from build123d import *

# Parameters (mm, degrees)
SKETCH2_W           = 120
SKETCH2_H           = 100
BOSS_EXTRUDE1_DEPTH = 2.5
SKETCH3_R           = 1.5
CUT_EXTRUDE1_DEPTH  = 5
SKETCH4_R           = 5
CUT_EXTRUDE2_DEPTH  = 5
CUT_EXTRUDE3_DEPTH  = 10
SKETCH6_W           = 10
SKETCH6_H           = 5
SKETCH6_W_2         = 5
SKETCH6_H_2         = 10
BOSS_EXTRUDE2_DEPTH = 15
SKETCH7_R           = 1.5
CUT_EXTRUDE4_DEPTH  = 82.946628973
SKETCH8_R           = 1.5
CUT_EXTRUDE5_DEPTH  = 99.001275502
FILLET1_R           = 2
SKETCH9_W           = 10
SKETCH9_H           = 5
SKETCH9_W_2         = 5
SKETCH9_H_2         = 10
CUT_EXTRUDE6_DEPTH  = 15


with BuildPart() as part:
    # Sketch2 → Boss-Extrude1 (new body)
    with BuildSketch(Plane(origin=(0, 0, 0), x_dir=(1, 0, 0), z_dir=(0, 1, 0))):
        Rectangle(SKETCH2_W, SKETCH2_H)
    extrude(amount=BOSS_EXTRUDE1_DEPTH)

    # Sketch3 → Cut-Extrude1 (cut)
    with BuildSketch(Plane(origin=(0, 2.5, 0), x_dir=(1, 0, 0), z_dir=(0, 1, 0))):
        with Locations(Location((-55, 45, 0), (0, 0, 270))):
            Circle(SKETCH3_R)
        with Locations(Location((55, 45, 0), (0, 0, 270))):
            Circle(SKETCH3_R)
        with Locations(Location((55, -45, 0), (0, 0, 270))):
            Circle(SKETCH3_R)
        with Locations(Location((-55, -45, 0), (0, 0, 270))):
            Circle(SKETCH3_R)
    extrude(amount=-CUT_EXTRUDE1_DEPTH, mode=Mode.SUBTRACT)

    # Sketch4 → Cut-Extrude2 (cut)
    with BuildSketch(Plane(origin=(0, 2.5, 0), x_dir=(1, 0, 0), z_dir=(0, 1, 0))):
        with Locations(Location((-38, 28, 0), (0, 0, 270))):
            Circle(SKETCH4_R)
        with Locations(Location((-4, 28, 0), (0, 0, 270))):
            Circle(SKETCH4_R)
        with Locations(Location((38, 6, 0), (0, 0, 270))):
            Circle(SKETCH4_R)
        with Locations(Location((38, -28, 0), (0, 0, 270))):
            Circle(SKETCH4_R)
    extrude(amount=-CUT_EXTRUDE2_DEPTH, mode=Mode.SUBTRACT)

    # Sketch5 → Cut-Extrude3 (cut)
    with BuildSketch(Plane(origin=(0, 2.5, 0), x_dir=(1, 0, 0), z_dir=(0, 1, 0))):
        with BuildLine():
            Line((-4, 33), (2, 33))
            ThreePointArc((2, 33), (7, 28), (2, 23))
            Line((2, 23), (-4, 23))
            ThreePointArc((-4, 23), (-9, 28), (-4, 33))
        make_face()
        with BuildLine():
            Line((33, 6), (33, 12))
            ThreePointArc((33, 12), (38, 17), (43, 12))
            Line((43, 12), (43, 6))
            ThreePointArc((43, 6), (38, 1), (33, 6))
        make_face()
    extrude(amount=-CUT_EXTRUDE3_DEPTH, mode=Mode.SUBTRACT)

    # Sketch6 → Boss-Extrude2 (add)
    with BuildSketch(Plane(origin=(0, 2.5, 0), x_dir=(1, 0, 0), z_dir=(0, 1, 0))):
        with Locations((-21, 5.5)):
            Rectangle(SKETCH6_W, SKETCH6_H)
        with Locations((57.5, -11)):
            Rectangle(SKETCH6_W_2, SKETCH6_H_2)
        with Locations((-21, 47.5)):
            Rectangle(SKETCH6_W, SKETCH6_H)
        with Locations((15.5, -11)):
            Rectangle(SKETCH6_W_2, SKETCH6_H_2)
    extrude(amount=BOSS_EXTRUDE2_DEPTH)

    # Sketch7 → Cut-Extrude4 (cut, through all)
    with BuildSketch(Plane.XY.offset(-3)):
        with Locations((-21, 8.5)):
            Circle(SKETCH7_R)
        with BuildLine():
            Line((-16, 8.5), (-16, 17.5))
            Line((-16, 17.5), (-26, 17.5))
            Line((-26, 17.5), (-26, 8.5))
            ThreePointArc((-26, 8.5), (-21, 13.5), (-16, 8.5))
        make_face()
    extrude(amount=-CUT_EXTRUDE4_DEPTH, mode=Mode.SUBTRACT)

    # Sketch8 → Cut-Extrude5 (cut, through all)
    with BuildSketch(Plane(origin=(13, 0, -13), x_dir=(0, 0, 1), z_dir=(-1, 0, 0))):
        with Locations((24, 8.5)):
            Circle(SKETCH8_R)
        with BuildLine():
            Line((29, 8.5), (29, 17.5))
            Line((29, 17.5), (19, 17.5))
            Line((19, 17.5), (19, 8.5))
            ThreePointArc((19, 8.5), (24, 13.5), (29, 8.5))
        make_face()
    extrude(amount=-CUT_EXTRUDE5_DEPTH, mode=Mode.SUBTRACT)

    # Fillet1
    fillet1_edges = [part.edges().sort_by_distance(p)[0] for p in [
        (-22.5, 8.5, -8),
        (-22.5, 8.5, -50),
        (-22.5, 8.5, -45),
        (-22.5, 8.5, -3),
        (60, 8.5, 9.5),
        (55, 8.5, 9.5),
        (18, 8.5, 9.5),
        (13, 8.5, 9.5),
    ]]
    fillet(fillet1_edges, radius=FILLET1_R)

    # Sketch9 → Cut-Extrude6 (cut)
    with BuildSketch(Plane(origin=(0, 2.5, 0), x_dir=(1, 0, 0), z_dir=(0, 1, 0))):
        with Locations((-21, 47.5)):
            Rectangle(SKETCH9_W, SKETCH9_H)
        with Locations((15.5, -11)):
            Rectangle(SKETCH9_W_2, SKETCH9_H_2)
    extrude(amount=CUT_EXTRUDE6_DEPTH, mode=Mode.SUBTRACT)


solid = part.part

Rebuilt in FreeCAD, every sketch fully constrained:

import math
import FreeCAD as App
import Part
import Sketcher

V = App.Vector
Q = App.Units.Quantity


def edges_at(feature, points):
    """Names of the edges that pass closest to the given points."""
    edges = feature.Shape.Edges
    near = lambda p: min(range(len(edges)), key=lambda i: edges[i].distToShape(Part.Vertex(*p))[0])
    return sorted({f"Edge{near(p) + 1}" for p in points})


def add_polygon(sketch, points):
    """Adds a closed chain of lines whose ends are joined by coincident constraints."""
    first, n = sketch.GeometryCount, len(points)
    for a, b in zip(points, points[1:] + points[:1]):
        sketch.addGeometry(Part.LineSegment(App.Vector(*a, 0), App.Vector(*b, 0)), False)
    for i in range(n):
        sketch.addConstraint(Sketcher.Constraint("Coincident", first + i, 2, first + (i + 1) % n, 1))

doc = App.newDocument("Part")
params = doc.addObject("Spreadsheet::Sheet", "Params")
for row, (alias, value) in enumerate([
    ("sketch1_width", "120 mm"),
    ("sketch1_height", "100 mm"),
    ("pad1_length", "2.5 mm"),
    ("sketch2_diameter", "3 mm"),
    ("pocket1_length", "5 mm"),
    ("sketch3_diameter", "10 mm"),
    ("pocket2_length", "5 mm"),
    ("sketch4_radius", "5 mm"),
    ("sketch4_width", "6 mm"),
    ("pocket3_length", "10 mm"),
    ("sketch5_width", "10 mm"),
    ("sketch5_width2", "5 mm"),
    ("pad2_length", "15 mm"),
    ("sketch6_diameter", "3 mm"),
    ("sketch6_radius", "5 mm"),
    ("sketch6_height", "9 mm"),
    ("sketch7_diameter", "3 mm"),
    ("sketch7_radius", "5 mm"),
    ("sketch7_width", "9 mm"),
    ("fillet_radius", "2 mm"),
    ("sketch8_width", "10 mm"),
    ("sketch8_width2", "5 mm"),
    ("pocket6_length", "15 mm"),
], start=1):
    params.set(f"A{row}", alias)
    params.set(f"B{row}", "=" + value)
    params.setAlias(f"B{row}", alias)

body = doc.addObject("PartDesign::Body", "Body")

# Sketch on XZ plane
sketch1 = doc.addObject("Sketcher::SketchObject", "Sketch")
body.addObject(sketch1)
sketch1.AttachmentSupport = (doc.XZ_Plane, [""])
sketch1.MapMode = "FlatFace"
add_polygon(sketch1, [(-60, -50), (-60, 50), (60, 50), (60, -50)])  # lines 0-3
sketch1.addConstraint([
    Sketcher.Constraint("Vertical", 0),
    Sketcher.Constraint("Horizontal", 1),
    Sketcher.Constraint("Vertical", 2),
    Sketcher.Constraint("Horizontal", 3),
    Sketcher.Constraint("Symmetric", 0, 2, 2, 2, -1, 1),
    Sketcher.Constraint("DistanceX", 1, 1, 1, 2, Q("120 mm")),
    Sketcher.Constraint("DistanceY", 0, 1, 0, 2, Q("100 mm")),
])
sketch1.setExpression("Constraints[9]", "Params.sketch1_width")
sketch1.setExpression("Constraints[10]", "Params.sketch1_height")
pad1 = doc.addObject("PartDesign::Pad", "Pad")
body.addObject(pad1)
pad1.Profile = sketch1
pad1.setExpression("Length", "Params.pad1_length")
pad1.Reversed = True

# Sketch on XZ plane
sketch2 = doc.addObject("Sketcher::SketchObject", "Sketch001")
body.addObject(sketch2)
sketch2.AttachmentSupport = (doc.XZ_Plane, [""])
sketch2.MapMode = "FlatFace"
sketch2.AttachmentOffset = App.Placement(V(0, 0, -2.5), App.Rotation())
sketch2.addGeometry([
    Part.Circle(V(-55, -45, 0), V(0, 0, 1), 1.5),
    Part.Circle(V(55, -45, 0), V(0, 0, 1), 1.5),
    Part.Circle(V(55, 45, 0), V(0, 0, 1), 1.5),
    Part.Circle(V(-55, 45, 0), V(0, 0, 1), 1.5),
], False)
sketch2.addConstraint([
    Sketcher.Constraint("Equal", 0, 1),
    Sketcher.Constraint("Equal", 1, 2),
    Sketcher.Constraint("Equal", 2, 3),
    Sketcher.Constraint("Symmetric", 0, 3, 2, 3, -1, 1),
    Sketcher.Constraint("Symmetric", 1, 3, 3, 3, -1, 1),
    Sketcher.Constraint("Symmetric", 0, 3, 1, 3, -2),
    Sketcher.Constraint("Diameter", 0, Q("3 mm")),
    Sketcher.Constraint("DistanceX", 0, 3, -1, 1, Q("55 mm")),
    Sketcher.Constraint("DistanceY", 0, 3, -1, 1, Q("45 mm")),
])
sketch2.setExpression("Constraints[6]", "Params.sketch2_diameter")
pocket1 = doc.addObject("PartDesign::Pocket", "Pocket")
body.addObject(pocket1)
pocket1.Profile = sketch2
pocket1.setExpression("Length", "Params.pocket1_length")
pocket1.Reversed = True

# Sketch on XZ plane
sketch3 = doc.addObject("Sketcher::SketchObject", "Sketch002")
body.addObject(sketch3)
sketch3.AttachmentSupport = (doc.XZ_Plane, [""])
sketch3.MapMode = "FlatFace"
sketch3.AttachmentOffset = App.Placement(V(0, 0, -2.5), App.Rotation())
sketch3.addGeometry([
    Part.Circle(V(-38, -28, 0), V(0, 0, 1), 5),
    Part.Circle(V(-4, -28, 0), V(0, 0, 1), 5),
    Part.Circle(V(38, -6, 0), V(0, 0, 1), 5),
    Part.Circle(V(38, 28, 0), V(0, 0, 1), 5),
], False)
sketch3.addConstraint([
    Sketcher.Constraint("Equal", 0, 1),
    Sketcher.Constraint("Equal", 1, 2),
    Sketcher.Constraint("Equal", 2, 3),
    Sketcher.Constraint("Symmetric", 0, 3, 3, 3, -1, 1),
    Sketcher.Constraint("Horizontal", 0, 3, 1, 3),
    Sketcher.Constraint("Vertical", 2, 3, 3, 3),
    Sketcher.Constraint("Diameter", 0, Q("10 mm")),
    Sketcher.Constraint("DistanceX", 0, 3, -1, 1, Q("38 mm")),
    Sketcher.Constraint("DistanceY", 0, 3, -1, 1, Q("28 mm")),
    Sketcher.Constraint("DistanceX", 1, 3, -1, 1, Q("4 mm")),
    Sketcher.Constraint("DistanceY", 2, 3, -1, 1, Q("6 mm")),
])
sketch3.setExpression("Constraints[6]", "Params.sketch3_diameter")
pocket2 = doc.addObject("PartDesign::Pocket", "Pocket001")
body.addObject(pocket2)
pocket2.Profile = sketch3
pocket2.setExpression("Length", "Params.pocket2_length")
pocket2.Reversed = True

# Sketch on XZ plane
sketch4 = doc.addObject("Sketcher::SketchObject", "Sketch003")
body.addObject(sketch4)
sketch4.AttachmentSupport = (doc.XZ_Plane, [""])
sketch4.MapMode = "FlatFace"
sketch4.AttachmentOffset = App.Placement(V(0, 0, -2.5), App.Rotation())
sketch4.addGeometry([
    Part.LineSegment(V(2, -33, 0), V(-4, -33, 0)),  # 0
    Part.ArcOfCircle(Part.Circle(V(-4, -28, 0), V(0, 0, 1), 5), math.radians(90), math.radians(270)),  # 1
    Part.LineSegment(V(-4, -23, 0), V(2, -23, 0)),  # 2
    Part.ArcOfCircle(Part.Circle(V(2, -28, 0), V(0, 0, 1), 5), math.radians(-90), math.radians(90)),  # 3
    Part.LineSegment(V(33, -12, 0), V(33, -6, 0)),  # 4
    Part.ArcOfCircle(Part.Circle(V(38, -6, 0), V(0, 0, 1), 5), math.radians(0), math.radians(180)),  # 5
    Part.LineSegment(V(43, -6, 0), V(43, -12, 0)),  # 6
    Part.ArcOfCircle(Part.Circle(V(38, -12, 0), V(0, 0, 1), 5), math.radians(180), math.radians(360)),  # 7
], False)
sketch4.addConstraint([
    Sketcher.Constraint("Tangent", 0, 2, 1, 2),
    Sketcher.Constraint("Tangent", 1, 1, 2, 1),
    Sketcher.Constraint("Tangent", 2, 2, 3, 2),
    Sketcher.Constraint("Tangent", 3, 1, 0, 1),
    Sketcher.Constraint("Tangent", 4, 2, 5, 2),
    Sketcher.Constraint("Tangent", 5, 1, 6, 1),
    Sketcher.Constraint("Tangent", 6, 2, 7, 2),
    Sketcher.Constraint("Tangent", 7, 1, 4, 1),
    Sketcher.Constraint("Horizontal", 0),
    Sketcher.Constraint("Horizontal", 2),
    Sketcher.Constraint("Vertical", 4),
    Sketcher.Constraint("Vertical", 6),
    Sketcher.Constraint("Equal", 3, 5),
    Sketcher.Constraint("Equal", 2, 4),
    Sketcher.Constraint("Radius", 1, Q("5 mm")),
    Sketcher.Constraint("DistanceX", 0, 2, 0, 1, Q("6 mm")),
    Sketcher.Constraint("DistanceX", 1, 3, -1, 1, Q("4 mm")),
    Sketcher.Constraint("DistanceY", 1, 3, -1, 1, Q("28 mm")),
    Sketcher.Constraint("DistanceX", -1, 1, 5, 3, Q("38 mm")),
    Sketcher.Constraint("DistanceY", 5, 3, -1, 1, Q("6 mm")),
])
sketch4.setExpression("Constraints[14]", "Params.sketch4_radius")
sketch4.setExpression("Constraints[15]", "Params.sketch4_width")
pocket3 = doc.addObject("PartDesign::Pocket", "Pocket002")
body.addObject(pocket3)
pocket3.Profile = sketch4
pocket3.setExpression("Length", "Params.pocket3_length")
pocket3.Reversed = True

# Sketch on XZ plane
sketch5 = doc.addObject("Sketcher::SketchObject", "Sketch004")
body.addObject(sketch5)
sketch5.AttachmentSupport = (doc.XZ_Plane, [""])
sketch5.MapMode = "FlatFace"
sketch5.AttachmentOffset = App.Placement(V(0, 0, -2.5), App.Rotation())
add_polygon(sketch5, [(-26, -8), (-26, -3), (-16, -3), (-16, -8)])  # lines 0-3
add_polygon(sketch5, [(55, 6), (55, 16), (60, 16), (60, 6)])  # lines 4-7
add_polygon(sketch5, [(-26, -50), (-26, -45), (-16, -45), (-16, -50)])  # lines 8-11
add_polygon(sketch5, [(13, 6), (13, 16), (18, 16), (18, 6)])  # lines 12-15
sketch5.addConstraint([
    Sketcher.Constraint("Vertical", 0),
    Sketcher.Constraint("Horizontal", 1),
    Sketcher.Constraint("Vertical", 2),
    Sketcher.Constraint("Horizontal", 3),
    Sketcher.Constraint("Vertical", 4),
    Sketcher.Constraint("Horizontal", 5),
    Sketcher.Constraint("Vertical", 6),
    Sketcher.Constraint("Horizontal", 7),
    Sketcher.Constraint("Vertical", 8),
    Sketcher.Constraint("Horizontal", 9),
    Sketcher.Constraint("Vertical", 10),
    Sketcher.Constraint("Horizontal", 11),
    Sketcher.Constraint("Vertical", 12),
    Sketcher.Constraint("Horizontal", 13),
    Sketcher.Constraint("Vertical", 14),
    Sketcher.Constraint("Horizontal", 15),
    Sketcher.Constraint("Horizontal", 5, 2, 12, 2),
    Sketcher.Constraint("Horizontal", 7, 2, 14, 2),
    Sketcher.Constraint("Vertical", 3, 2, 8, 2),
    Sketcher.Constraint("Vertical", 2, 2, 9, 2),
    Sketcher.Constraint("Equal", 7, 13),
    Sketcher.Constraint("Equal", 15, 0),
    Sketcher.Constraint("Equal", 11, 4),
    Sketcher.Constraint("Equal", 2, 8),
    Sketcher.Constraint("DistanceX", 1, 1, 1, 2, Q("10 mm")),
    Sketcher.Constraint("DistanceX", 5, 1, 5, 2, Q("5 mm")),
    Sketcher.Constraint("DistanceX", 0, 2, -1, 1, Q("26 mm")),
    Sketcher.Constraint("DistanceY", 0, 2, -1, 1, Q("3 mm")),
    Sketcher.Constraint("DistanceX", -1, 1, 4, 2, Q("55 mm")),
    Sketcher.Constraint("DistanceY", -1, 1, 4, 2, Q("16 mm")),
    Sketcher.Constraint("DistanceY", 8, 2, -1, 1, Q("45 mm")),
    Sketcher.Constraint("DistanceX", -1, 1, 12, 2, Q("13 mm")),
])
sketch5.setExpression("Constraints[40]", "Params.sketch5_width")
sketch5.setExpression("Constraints[41]", "Params.sketch5_width2")
pad2 = doc.addObject("PartDesign::Pad", "Pad001")
body.addObject(pad2)
pad2.Profile = sketch5
pad2.setExpression("Length", "Params.pad2_length")
pad2.Reversed = True

# Sketch on XY plane
sketch6 = doc.addObject("Sketcher::SketchObject", "Sketch005")
body.addObject(sketch6)
sketch6.AttachmentSupport = (doc.XY_Plane, [""])
sketch6.MapMode = "FlatFace"
sketch6.AttachmentOffset = App.Placement(V(0, 0, -3), App.Rotation())
sketch6.addGeometry([
    Part.Circle(V(-21, 8.5, 0), V(0, 0, 1), 1.5),  # 0
    Part.LineSegment(V(-16, 8.5, 0), V(-16, 17.5, 0)),  # 1
    Part.LineSegment(V(-16, 17.5, 0), V(-26, 17.5, 0)),  # 2
    Part.LineSegment(V(-26, 17.5, 0), V(-26, 8.5, 0)),  # 3
    Part.ArcOfCircle(Part.Circle(V(-21, 8.5, 0), V(0, 0, 1), 5), math.radians(0), math.radians(180)),  # 4
], False)
sketch6.addConstraint([
    Sketcher.Constraint("Coincident", 1, 2, 2, 1),
    Sketcher.Constraint("Coincident", 2, 2, 3, 1),
    Sketcher.Constraint("Tangent", 3, 2, 4, 2),
    Sketcher.Constraint("Tangent", 4, 1, 1, 1),
    Sketcher.Constraint("Vertical", 1),
    Sketcher.Constraint("Horizontal", 2),
    Sketcher.Constraint("Vertical", 3),
    Sketcher.Constraint("Coincident", 4, 3, 0, 3),
    Sketcher.Constraint("Diameter", 0, Q("3 mm")),
    Sketcher.Constraint("Radius", 4, Q("5 mm")),
    Sketcher.Constraint("DistanceY", 1, 1, 1, 2, Q("9 mm")),
    Sketcher.Constraint("DistanceX", 0, 3, -1, 1, Q("21 mm")),
    Sketcher.Constraint("DistanceY", -1, 1, 0, 3, Q("8.5 mm")),
])
sketch6.setExpression("Constraints[8]", "Params.sketch6_diameter")
sketch6.setExpression("Constraints[9]", "Params.sketch6_radius")
sketch6.setExpression("Constraints[10]", "Params.sketch6_height")
pocket4 = doc.addObject("PartDesign::Pocket", "Pocket003")
body.addObject(pocket4)
pocket4.Profile = sketch6
pocket4.Type = "ThroughAll"

# Sketch on YZ plane
sketch7 = doc.addObject("Sketcher::SketchObject", "Sketch006")
body.addObject(sketch7)
sketch7.AttachmentSupport = (doc.YZ_Plane, [""])
sketch7.MapMode = "FlatFace"
sketch7.AttachmentOffset = App.Placement(V(0, 0, 13), App.Rotation())
sketch7.addGeometry([
    Part.Circle(V(8.5, 11, 0), V(0, 0, 1), 1.5),  # 0
    Part.LineSegment(V(8.5, 16, 0), V(17.5, 16, 0)),  # 1
    Part.LineSegment(V(17.5, 16, 0), V(17.5, 6, 0)),  # 2
    Part.LineSegment(V(17.5, 6, 0), V(8.5, 6, 0)),  # 3
    Part.ArcOfCircle(Part.Circle(V(8.5, 11, 0), V(0, 0, 1), 5), math.radians(-90), math.radians(90)),  # 4
], False)
sketch7.addConstraint([
    Sketcher.Constraint("Coincident", 1, 2, 2, 1),
    Sketcher.Constraint("Coincident", 2, 2, 3, 1),
    Sketcher.Constraint("Tangent", 3, 2, 4, 1),
    Sketcher.Constraint("Tangent", 4, 2, 1, 1),
    Sketcher.Constraint("Horizontal", 1),
    Sketcher.Constraint("Vertical", 2),
    Sketcher.Constraint("Horizontal", 3),
    Sketcher.Constraint("Coincident", 4, 3, 0, 3),
    Sketcher.Constraint("Diameter", 0, Q("3 mm")),
    Sketcher.Constraint("Radius", 4, Q("5 mm")),
    Sketcher.Constraint("DistanceX", 1, 1, 1, 2, Q("9 mm")),
    Sketcher.Constraint("DistanceY", -1, 1, 0, 3, Q("11 mm")),
    Sketcher.Constraint("DistanceX", -1, 1, 0, 3, Q("8.5 mm")),
])
sketch7.setExpression("Constraints[8]", "Params.sketch7_diameter")
sketch7.setExpression("Constraints[9]", "Params.sketch7_radius")
sketch7.setExpression("Constraints[10]", "Params.sketch7_width")
pocket5 = doc.addObject("PartDesign::Pocket", "Pocket004")
body.addObject(pocket5)
pocket5.Profile = sketch7
pocket5.Type = "ThroughAll"
pocket5.Reversed = True
doc.recompute()

fillet = doc.addObject("PartDesign::Fillet", "Fillet")
body.addObject(fillet)
fillet.Base = (pocket5, edges_at(pocket5, [
    (-22.5, 8.5, -8),
    (-22.5, 8.5, -50),
    (-22.5, 8.5, -45),
    (-22.5, 8.5, -3),
    (60, 8.5, 9.5),
    (55, 8.5, 9.5),
    (18, 8.5, 9.5),
    (13, 8.5, 9.5),
]))
fillet.setExpression("Radius", "Params.fillet_radius")

# Sketch on XZ plane
sketch8 = doc.addObject("Sketcher::SketchObject", "Sketch007")
body.addObject(sketch8)
sketch8.AttachmentSupport = (doc.XZ_Plane, [""])
sketch8.MapMode = "FlatFace"
sketch8.AttachmentOffset = App.Placement(V(0, 0, -2.5), App.Rotation())
add_polygon(sketch8, [(-26, -50), (-26, -45), (-16, -45), (-16, -50)])  # lines 0-3
add_polygon(sketch8, [(13, 6), (13, 16), (18, 16), (18, 6)])  # lines 4-7
sketch8.addConstraint([
    Sketcher.Constraint("Vertical", 0),
    Sketcher.Constraint("Horizontal", 1),
    Sketcher.Constraint("Vertical", 2),
    Sketcher.Constraint("Horizontal", 3),
    Sketcher.Constraint("Vertical", 4),
    Sketcher.Constraint("Horizontal", 5),
    Sketcher.Constraint("Vertical", 6),
    Sketcher.Constraint("Horizontal", 7),
    Sketcher.Constraint("Equal", 7, 0),
    Sketcher.Constraint("Equal", 3, 4),
    Sketcher.Constraint("DistanceX", 1, 1, 1, 2, Q("10 mm")),
    Sketcher.Constraint("DistanceX", 5, 1, 5, 2, Q("5 mm")),
    Sketcher.Constraint("DistanceX", 0, 2, -1, 1, Q("26 mm")),
    Sketcher.Constraint("DistanceY", 0, 2, -1, 1, Q("45 mm")),
    Sketcher.Constraint("DistanceX", -1, 1, 4, 2, Q("13 mm")),
    Sketcher.Constraint("DistanceY", -1, 1, 4, 2, Q("16 mm")),
])
sketch8.setExpression("Constraints[18]", "Params.sketch8_width")
sketch8.setExpression("Constraints[19]", "Params.sketch8_width2")
pocket6 = doc.addObject("PartDesign::Pocket", "Pocket005")
body.addObject(pocket6)
pocket6.Profile = sketch8
pocket6.setExpression("Length", "Params.pocket6_length")

doc.recompute()
